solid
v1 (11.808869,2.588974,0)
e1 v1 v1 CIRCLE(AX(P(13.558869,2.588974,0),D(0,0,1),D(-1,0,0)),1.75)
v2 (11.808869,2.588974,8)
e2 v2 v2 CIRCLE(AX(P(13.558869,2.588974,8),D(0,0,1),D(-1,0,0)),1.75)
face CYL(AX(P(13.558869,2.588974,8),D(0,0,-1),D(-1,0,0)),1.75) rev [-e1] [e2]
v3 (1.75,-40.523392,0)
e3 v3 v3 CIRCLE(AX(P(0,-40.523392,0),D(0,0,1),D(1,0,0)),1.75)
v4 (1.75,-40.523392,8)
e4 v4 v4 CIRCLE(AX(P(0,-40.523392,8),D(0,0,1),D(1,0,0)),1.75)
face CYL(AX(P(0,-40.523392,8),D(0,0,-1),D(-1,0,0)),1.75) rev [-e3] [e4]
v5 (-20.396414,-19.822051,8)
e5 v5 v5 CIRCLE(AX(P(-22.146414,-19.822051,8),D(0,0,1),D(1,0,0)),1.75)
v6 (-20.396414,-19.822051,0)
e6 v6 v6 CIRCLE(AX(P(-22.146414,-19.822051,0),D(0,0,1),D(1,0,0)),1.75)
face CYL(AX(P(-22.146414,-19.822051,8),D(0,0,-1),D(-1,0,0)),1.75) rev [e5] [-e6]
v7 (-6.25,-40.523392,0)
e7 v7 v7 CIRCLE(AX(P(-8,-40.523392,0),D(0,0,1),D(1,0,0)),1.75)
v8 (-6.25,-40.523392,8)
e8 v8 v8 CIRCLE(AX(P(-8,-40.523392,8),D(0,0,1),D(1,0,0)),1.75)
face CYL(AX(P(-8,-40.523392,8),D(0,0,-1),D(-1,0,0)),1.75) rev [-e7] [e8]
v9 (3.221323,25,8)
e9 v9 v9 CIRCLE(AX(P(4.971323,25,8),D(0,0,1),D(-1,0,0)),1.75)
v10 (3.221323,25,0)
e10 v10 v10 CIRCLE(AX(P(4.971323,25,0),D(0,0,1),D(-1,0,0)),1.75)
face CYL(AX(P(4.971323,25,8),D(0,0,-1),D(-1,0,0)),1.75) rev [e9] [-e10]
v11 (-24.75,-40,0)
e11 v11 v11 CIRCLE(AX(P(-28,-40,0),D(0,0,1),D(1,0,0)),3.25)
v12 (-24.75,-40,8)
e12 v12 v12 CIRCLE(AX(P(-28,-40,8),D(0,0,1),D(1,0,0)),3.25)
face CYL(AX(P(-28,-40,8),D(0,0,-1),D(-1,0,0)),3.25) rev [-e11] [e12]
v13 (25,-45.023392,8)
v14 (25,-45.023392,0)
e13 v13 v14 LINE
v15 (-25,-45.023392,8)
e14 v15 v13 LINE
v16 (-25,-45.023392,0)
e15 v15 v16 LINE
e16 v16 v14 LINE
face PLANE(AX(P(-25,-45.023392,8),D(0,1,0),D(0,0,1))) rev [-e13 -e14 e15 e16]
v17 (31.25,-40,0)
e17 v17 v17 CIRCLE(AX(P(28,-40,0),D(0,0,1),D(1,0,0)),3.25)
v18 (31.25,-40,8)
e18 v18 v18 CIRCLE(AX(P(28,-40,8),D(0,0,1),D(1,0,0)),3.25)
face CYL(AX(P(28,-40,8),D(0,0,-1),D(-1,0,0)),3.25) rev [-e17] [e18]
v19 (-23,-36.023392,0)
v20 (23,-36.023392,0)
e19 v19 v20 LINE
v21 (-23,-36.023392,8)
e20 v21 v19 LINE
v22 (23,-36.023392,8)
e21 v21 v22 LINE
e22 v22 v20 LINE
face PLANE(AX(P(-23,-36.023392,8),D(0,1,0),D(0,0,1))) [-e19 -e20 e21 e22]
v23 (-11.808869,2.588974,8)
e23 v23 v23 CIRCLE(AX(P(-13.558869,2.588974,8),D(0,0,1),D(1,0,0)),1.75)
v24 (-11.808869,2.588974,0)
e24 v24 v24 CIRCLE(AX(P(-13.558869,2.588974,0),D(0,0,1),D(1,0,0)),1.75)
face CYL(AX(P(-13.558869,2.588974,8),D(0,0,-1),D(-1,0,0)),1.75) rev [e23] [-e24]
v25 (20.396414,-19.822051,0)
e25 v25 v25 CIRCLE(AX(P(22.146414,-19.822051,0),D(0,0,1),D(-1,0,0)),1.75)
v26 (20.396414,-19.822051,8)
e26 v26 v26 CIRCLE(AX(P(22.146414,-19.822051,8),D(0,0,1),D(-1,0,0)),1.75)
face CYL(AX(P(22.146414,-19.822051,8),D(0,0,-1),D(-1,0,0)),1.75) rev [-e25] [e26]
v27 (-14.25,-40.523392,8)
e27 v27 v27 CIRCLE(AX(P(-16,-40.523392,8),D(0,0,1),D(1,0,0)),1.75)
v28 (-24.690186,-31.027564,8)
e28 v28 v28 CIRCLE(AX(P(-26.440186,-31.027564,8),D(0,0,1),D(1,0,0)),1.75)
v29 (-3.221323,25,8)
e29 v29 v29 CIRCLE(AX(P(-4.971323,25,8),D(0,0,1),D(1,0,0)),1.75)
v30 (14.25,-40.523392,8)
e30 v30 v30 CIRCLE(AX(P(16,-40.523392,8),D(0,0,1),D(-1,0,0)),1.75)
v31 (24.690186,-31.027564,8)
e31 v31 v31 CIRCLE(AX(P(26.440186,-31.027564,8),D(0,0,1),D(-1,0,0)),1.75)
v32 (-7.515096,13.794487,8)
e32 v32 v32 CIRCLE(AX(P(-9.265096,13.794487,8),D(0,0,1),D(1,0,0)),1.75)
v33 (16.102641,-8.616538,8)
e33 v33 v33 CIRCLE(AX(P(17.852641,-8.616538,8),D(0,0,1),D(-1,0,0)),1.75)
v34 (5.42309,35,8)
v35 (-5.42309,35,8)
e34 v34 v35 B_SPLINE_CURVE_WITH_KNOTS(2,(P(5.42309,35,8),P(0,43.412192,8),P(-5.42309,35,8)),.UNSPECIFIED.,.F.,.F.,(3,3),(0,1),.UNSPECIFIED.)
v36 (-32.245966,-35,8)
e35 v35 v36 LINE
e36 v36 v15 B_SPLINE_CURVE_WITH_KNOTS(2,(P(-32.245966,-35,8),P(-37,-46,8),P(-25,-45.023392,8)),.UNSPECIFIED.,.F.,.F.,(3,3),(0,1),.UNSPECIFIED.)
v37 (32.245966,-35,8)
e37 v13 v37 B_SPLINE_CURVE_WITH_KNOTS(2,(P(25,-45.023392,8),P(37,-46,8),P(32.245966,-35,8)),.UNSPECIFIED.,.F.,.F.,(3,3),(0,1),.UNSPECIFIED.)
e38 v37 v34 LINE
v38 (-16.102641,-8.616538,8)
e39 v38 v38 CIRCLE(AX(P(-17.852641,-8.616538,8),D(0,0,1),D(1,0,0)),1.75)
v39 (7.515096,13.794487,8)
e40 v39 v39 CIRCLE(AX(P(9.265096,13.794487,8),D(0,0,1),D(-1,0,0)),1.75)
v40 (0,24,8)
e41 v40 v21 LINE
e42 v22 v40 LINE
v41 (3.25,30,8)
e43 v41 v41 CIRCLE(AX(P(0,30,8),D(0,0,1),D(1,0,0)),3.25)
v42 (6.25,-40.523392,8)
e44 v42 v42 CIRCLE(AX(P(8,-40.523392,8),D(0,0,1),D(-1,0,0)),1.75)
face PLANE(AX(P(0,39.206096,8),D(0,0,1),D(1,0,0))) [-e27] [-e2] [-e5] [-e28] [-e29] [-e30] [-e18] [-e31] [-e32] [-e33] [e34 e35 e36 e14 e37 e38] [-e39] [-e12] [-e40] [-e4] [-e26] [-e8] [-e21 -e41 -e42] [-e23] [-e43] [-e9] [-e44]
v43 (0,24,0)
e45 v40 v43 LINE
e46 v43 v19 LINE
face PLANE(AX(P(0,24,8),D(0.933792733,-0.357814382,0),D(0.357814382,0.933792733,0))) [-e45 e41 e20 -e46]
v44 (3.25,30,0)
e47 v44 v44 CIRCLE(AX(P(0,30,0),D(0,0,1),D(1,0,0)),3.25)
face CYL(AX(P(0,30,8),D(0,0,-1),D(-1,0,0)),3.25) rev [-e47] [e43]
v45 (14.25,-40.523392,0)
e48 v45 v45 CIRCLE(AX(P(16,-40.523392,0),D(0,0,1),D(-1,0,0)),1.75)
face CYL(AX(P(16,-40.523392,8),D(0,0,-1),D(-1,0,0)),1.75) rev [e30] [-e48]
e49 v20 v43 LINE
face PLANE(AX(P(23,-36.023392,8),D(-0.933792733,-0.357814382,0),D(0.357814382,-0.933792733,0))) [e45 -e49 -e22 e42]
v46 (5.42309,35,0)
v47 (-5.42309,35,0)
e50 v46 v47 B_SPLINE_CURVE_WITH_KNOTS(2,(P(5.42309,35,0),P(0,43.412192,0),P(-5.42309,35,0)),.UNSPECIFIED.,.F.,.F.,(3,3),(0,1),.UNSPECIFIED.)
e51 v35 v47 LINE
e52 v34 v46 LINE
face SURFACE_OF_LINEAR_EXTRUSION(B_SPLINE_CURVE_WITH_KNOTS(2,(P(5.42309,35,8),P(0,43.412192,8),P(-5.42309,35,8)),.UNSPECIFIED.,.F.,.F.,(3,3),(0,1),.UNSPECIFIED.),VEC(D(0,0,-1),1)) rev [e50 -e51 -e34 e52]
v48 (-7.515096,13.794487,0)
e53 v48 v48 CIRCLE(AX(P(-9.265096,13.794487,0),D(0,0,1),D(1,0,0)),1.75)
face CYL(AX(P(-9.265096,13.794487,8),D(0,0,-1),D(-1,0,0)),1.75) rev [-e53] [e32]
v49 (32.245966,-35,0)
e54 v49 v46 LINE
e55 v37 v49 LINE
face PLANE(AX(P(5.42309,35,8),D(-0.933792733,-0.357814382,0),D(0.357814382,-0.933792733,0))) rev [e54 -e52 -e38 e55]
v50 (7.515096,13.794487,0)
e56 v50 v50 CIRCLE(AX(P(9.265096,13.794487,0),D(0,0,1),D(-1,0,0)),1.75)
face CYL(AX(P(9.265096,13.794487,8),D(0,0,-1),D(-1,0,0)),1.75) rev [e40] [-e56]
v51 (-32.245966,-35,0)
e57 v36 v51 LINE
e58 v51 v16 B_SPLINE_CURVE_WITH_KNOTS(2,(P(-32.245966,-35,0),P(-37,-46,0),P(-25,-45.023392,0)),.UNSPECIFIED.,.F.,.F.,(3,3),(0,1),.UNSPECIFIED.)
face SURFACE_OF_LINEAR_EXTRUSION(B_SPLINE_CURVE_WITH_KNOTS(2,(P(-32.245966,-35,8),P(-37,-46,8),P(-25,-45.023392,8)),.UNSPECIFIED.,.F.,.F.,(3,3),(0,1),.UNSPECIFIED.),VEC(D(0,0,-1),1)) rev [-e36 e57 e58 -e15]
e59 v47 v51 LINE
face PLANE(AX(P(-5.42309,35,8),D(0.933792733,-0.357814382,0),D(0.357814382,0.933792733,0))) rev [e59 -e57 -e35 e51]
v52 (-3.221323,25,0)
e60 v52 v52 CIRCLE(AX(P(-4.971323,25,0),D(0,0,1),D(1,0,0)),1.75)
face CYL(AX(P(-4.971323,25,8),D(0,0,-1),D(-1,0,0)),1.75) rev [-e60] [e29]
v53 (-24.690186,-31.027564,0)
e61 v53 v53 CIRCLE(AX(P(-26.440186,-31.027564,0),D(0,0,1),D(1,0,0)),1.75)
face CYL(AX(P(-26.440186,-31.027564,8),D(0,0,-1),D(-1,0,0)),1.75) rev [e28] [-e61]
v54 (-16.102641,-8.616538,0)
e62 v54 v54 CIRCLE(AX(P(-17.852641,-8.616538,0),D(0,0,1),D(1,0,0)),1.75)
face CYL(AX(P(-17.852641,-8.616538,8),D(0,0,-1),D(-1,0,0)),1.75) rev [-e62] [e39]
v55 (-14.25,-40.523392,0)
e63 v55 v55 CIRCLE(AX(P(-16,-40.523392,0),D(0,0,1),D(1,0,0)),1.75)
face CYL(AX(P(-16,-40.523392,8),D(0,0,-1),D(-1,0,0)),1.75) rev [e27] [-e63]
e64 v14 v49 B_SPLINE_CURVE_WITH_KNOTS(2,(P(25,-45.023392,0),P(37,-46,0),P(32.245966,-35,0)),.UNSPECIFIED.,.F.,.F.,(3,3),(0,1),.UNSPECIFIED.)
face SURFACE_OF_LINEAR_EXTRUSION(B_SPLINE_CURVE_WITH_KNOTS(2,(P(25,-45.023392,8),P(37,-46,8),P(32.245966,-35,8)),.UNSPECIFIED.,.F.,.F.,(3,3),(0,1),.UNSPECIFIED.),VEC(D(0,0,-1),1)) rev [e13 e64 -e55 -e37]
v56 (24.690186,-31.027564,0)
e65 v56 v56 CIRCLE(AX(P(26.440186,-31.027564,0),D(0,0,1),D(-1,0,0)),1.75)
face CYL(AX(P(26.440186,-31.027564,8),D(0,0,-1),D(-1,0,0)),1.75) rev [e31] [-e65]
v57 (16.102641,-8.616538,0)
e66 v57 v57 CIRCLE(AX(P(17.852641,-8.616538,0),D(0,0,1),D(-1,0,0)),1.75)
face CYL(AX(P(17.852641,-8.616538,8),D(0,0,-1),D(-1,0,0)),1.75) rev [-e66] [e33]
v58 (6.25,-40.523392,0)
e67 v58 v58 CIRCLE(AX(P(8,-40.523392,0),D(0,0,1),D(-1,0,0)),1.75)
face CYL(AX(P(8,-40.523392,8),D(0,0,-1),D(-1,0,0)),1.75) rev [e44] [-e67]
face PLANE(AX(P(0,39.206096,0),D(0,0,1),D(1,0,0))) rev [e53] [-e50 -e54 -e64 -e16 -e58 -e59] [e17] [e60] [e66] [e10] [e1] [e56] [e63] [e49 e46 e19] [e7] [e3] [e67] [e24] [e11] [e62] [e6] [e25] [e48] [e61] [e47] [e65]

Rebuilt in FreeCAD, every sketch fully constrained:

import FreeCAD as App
import Part
import Sketcher

V = App.Vector


def add_polygon(sketch, points):
    """Adds a closed chain of lines whose ends are joined by coincident constraints."""
    first, n = sketch.GeometryCount, len(points)
    for a, b in zip(points, points[1:] + points[:1]):
        sketch.addGeometry(Part.LineSegment(App.Vector(*a, 0), App.Vector(*b, 0)), False)
    for i in range(n):
        sketch.addConstraint(Sketcher.Constraint("Coincident", first + i, 2, first + (i + 1) % n, 1))

doc = App.newDocument("Part")
body = doc.addObject("PartDesign::Body", "Body")

sketch1 = body.newObject("Sketcher::SketchObject", "Sketch")
sketch1.AttachmentSupport = (doc.getObject("XY_Plane"), [""])
sketch1.MapMode = "FlatFace"
sketch1.addGeometry(Part.LineSegment(V(-5.42309, 35, 0), V(-32.245966, -35, 0)), False)
sketch1.addGeometry(Part.BSplineCurve([V(-32.245966, -35, 0), V(-37, -46, 0), V(-25, -45.023392, 0)], [3, 3], [0, 1], False, 2, [1, 1, 1], False), False)
sketch1.addGeometry(Part.LineSegment(V(-25, -45.023392, 0), V(25, -45.023392, 0)), False)
sketch1.addGeometry(Part.BSplineCurve([V(32.245966, -35, 0), V(37, -46, 0), V(25, -45.023392, 0)], [3, 3], [0, 1], False, 2, [1, 1, 1], False), False)
sketch1.addGeometry(Part.LineSegment(V(32.245966, -35, 0), V(5.42309, 35, 0)), False)
sketch1.addGeometry(Part.BSplineCurve([V(-5.42309, 35, 0), V(0, 43.412192, 0), V(5.42309, 35, 0)], [3, 3], [0, 1], False, 2, [1, 1, 1], False), False)
sketch1.addGeometry(Part.Circle(V(-28, -40, 0), V(0, 0, 1), 3.25), False)
sketch1.addGeometry(Part.Circle(V(-16, -40.523392, 0), V(0, 0, 1), 1.75), False)
sketch1.addGeometry(Part.Circle(V(-26.440186, -31.027564, 0), V(0, 0, 1), 1.75), False)
sketch1.addGeometry(Part.Circle(V(-8, -40.523392, 0), V(0, 0, 1), 1.75), False)
sketch1.addGeometry(Part.Circle(V(-22.146414, -19.822051, 0), V(0, 0, 1), 1.75), False)
sketch1.addGeometry(Part.Circle(V(-17.852641, -8.616538, 0), V(0, 0, 1), 1.75), False)
sketch1.addGeometry(Part.Circle(V(0, -40.523392, 0), V(0, 0, 1), 1.75), False)
sketch1.addGeometry(Part.Circle(V(8, -40.523392, 0), V(0, 0, 1), 1.75), False)
sketch1.addGeometry(Part.Circle(V(16, -40.523392, 0), V(0, 0, 1), 1.75), False)
sketch1.addGeometry(Part.Circle(V(28, -40, 0), V(0, 0, 1), 3.25), False)
sketch1.addGeometry(Part.Circle(V(26.440186, -31.027564, 0), V(0, 0, 1), 1.75), False)
add_polygon(sketch1, [(-23, -36.023392), (0, 24), (23, -36.023392)])
sketch1.addGeometry(Part.Circle(V(22.146414, -19.822051, 0), V(0, 0, 1), 1.75), False)
sketch1.addGeometry(Part.Circle(V(17.852641, -8.616538, 0), V(0, 0, 1), 1.75), False)
sketch1.addGeometry(Part.Circle(V(-13.558869, 2.588974, 0), V(0, 0, 1), 1.75), False)
sketch1.addGeometry(Part.Circle(V(-9.265096, 13.794487, 0), V(0, 0, 1), 1.75), False)
sketch1.addGeometry(Part.Circle(V(-4.971323, 25, 0), V(0, 0, 1), 1.75), False)
sketch1.addGeometry(Part.Circle(V(13.558869, 2.588974, 0), V(0, 0, 1), 1.75), False)
sketch1.addGeometry(Part.Circle(V(9.265096, 13.794487, 0), V(0, 0, 1), 1.75), False)
sketch1.addGeometry(Part.Circle(V(4.971323, 25, 0), V(0, 0, 1), 1.75), False)
sketch1.addGeometry(Part.Circle(V(0, 30, 0), V(0, 0, 1), 3.25), False)
sketch1.addConstraint(Sketcher.Constraint("Block", 1))
sketch1.addConstraint(Sketcher.Constraint("Block", 3))
sketch1.addConstraint(Sketcher.Constraint("Block", 5))
sketch1.addConstraint(Sketcher.Constraint("Coincident", 0, 2, 1, 1))
sketch1.addConstraint(Sketcher.Constraint("Coincident", 1, 2, 2, 1))
sketch1.addConstraint(Sketcher.Constraint("Coincident", 2, 2, 3, 2))
sketch1.addConstraint(Sketcher.Constraint("Coincident", 3, 1, 4, 1))
sketch1.addConstraint(Sketcher.Constraint("Coincident", 4, 2, 5, 2))
sketch1.addConstraint(Sketcher.Constraint("Coincident", 5, 1, 0, 1))
sketch1.addConstraint(Sketcher.Constraint("Horizontal", 19))
sketch1.addConstraint(Sketcher.Constraint("Equal", 7, 8))
sketch1.addConstraint(Sketcher.Constraint("Equal", 8, 9))
sketch1.addConstraint(Sketcher.Constraint("Equal", 9, 10))
sketch1.addConstraint(Sketcher.Constraint("Equal", 10, 11))
sketch1.addConstraint(Sketcher.Constraint("Equal", 11, 12))
sketch1.addConstraint(Sketcher.Constraint("Equal", 12, 13))
sketch1.addConstraint(Sketcher.Constraint("Equal", 13, 14))
sketch1.addConstraint(Sketcher.Constraint("Equal", 6, 15))
sketch1.addConstraint(Sketcher.Constraint("Equal", 14, 16))
sketch1.addConstraint(Sketcher.Constraint("Equal", 16, 20))
sketch1.addConstraint(Sketcher.Constraint("Equal", 20, 21))
sketch1.addConstraint(Sketcher.Constraint("Equal", 21, 22))
sketch1.addConstraint(Sketcher.Constraint("Equal", 22, 23))
sketch1.addConstraint(Sketcher.Constraint("Equal", 23, 24))
sketch1.addConstraint(Sketcher.Constraint("Equal", 24, 25))
sketch1.addConstraint(Sketcher.Constraint("Equal", 25, 26))
sketch1.addConstraint(Sketcher.Constraint("Equal", 26, 27))
sketch1.addConstraint(Sketcher.Constraint("Equal", 15, 28))
sketch1.addConstraint(Sketcher.Constraint("Symmetric", 9, 3, 13, 3, -2))
sketch1.addConstraint(Sketcher.Constraint("Symmetric", 7, 3, 14, 3, -2))
sketch1.addConstraint(Sketcher.Constraint("Symmetric", 6, 3, 15, 3, -2))
sketch1.addConstraint(Sketcher.Constraint("Symmetric", 8, 3, 16, 3, -2))
sketch1.addConstraint(Sketcher.Constraint("Symmetric", 10, 3, 20, 3, -2))
sketch1.addConstraint(Sketcher.Constraint("Symmetric", 11, 3, 21, 3, -2))
sketch1.addConstraint(Sketcher.Constraint("Symmetric", 22, 3, 25, 3, -2))
sketch1.addConstraint(Sketcher.Constraint("Symmetric", 23, 3, 26, 3, -2))
sketch1.addConstraint(Sketcher.Constraint("Symmetric", 24, 3, 27, 3, -2))
sketch1.addConstraint(Sketcher.Constraint("PointOnObject", 12, 3, -2))
sketch1.addConstraint(Sketcher.Constraint("PointOnObject", 28, 3, -2))
sketch1.addConstraint(Sketcher.Constraint("PointOnObject", 17, 2, -2))
sketch1.addConstraint(Sketcher.Constraint("Parallel", 0, 17))
sketch1.addConstraint(Sketcher.Constraint("Parallel", 4, 18))
sketch1.addConstraint(Sketcher.Constraint("Horizontal", 7, 3, 9, 3))
sketch1.addConstraint(Sketcher.Constraint("Horizontal", 9, 3, 12, 3))
sketch1.addConstraint(Sketcher.Constraint("Diameter", 6, 6.5))
sketch1.addConstraint(Sketcher.Constraint("Diameter", 7, 3.5))
sketch1.addConstraint(Sketcher.Constraint("DistanceX", 19, 2, 19, 1, 46.0))
sketch1.addConstraint(Sketcher.Constraint("DistanceX", 6, 3, -1, 1, 28.0))
sketch1.addConstraint(Sketcher.Constraint("DistanceY", 6, 3, -1, 1, 40.0))
sketch1.addConstraint(Sketcher.Constraint("DistanceX", 7, 3, -1, 1, 16.0))
sketch1.addConstraint(Sketcher.Constraint("DistanceX", 9, 3, -1, 1, 8.0))
sketch1.addConstraint(Sketcher.Constraint("DistanceY", -1, 1, 24, 3, 25.0))
sketch1.addConstraint(Sketcher.Constraint("DistanceY", -1, 1, 28, 3, 30.0))
sketch1.addConstraint(Sketcher.Constraint("DistanceY", -1, 1, 17, 2, 24.0))
sketch1.addConstraint(Sketcher.Constraint("DistanceY", 2, 2, 14, 3, 4.5))
sketch1.addConstraint(Sketcher.Constraint("DistanceY", 10, 3, -1, 1, 19.822051))
sketch1.addConstraint(Sketcher.Constraint("DistanceX", 11, 3, -1, 1, 17.852641))
sketch1.addConstraint(Sketcher.Constraint("DistanceY", 11, 3, -1, 1, 8.616538))
sketch1.addConstraint(Sketcher.Constraint("DistanceX", 22, 3, -1, 1, 13.558869))
sketch1.addConstraint(Sketcher.Constraint("DistanceY", 8, 3, 22, 3, 33.616538))
sketch1.addConstraint(Sketcher.Constraint("DistanceY", 10, 3, 23, 3, 33.616538))
sketch1.addConstraint(Sketcher.Constraint("DistanceX", 23, 3, 20, 3, 31.41151))
sketch1.addConstraint(Sketcher.Constraint("DistanceX", 10, 3, 24, 3, 17.17509))
sketch1.addConstraint(Sketcher.Constraint("DistanceX", 24, 3, 25, 3, 18.530192))
sketch1.addConstraint(Sketcher.Constraint("DistanceX", 0, 2, 8, 3, 5.80578))
sketch1.addConstraint(Sketcher.Constraint("DistanceY", 8, 3, -1, 1, 31.027564))
pad1 = body.newObject("PartDesign::Pad", "Pad")
pad1.Profile = sketch1
pad1.Length = 8

doc.recompute()
